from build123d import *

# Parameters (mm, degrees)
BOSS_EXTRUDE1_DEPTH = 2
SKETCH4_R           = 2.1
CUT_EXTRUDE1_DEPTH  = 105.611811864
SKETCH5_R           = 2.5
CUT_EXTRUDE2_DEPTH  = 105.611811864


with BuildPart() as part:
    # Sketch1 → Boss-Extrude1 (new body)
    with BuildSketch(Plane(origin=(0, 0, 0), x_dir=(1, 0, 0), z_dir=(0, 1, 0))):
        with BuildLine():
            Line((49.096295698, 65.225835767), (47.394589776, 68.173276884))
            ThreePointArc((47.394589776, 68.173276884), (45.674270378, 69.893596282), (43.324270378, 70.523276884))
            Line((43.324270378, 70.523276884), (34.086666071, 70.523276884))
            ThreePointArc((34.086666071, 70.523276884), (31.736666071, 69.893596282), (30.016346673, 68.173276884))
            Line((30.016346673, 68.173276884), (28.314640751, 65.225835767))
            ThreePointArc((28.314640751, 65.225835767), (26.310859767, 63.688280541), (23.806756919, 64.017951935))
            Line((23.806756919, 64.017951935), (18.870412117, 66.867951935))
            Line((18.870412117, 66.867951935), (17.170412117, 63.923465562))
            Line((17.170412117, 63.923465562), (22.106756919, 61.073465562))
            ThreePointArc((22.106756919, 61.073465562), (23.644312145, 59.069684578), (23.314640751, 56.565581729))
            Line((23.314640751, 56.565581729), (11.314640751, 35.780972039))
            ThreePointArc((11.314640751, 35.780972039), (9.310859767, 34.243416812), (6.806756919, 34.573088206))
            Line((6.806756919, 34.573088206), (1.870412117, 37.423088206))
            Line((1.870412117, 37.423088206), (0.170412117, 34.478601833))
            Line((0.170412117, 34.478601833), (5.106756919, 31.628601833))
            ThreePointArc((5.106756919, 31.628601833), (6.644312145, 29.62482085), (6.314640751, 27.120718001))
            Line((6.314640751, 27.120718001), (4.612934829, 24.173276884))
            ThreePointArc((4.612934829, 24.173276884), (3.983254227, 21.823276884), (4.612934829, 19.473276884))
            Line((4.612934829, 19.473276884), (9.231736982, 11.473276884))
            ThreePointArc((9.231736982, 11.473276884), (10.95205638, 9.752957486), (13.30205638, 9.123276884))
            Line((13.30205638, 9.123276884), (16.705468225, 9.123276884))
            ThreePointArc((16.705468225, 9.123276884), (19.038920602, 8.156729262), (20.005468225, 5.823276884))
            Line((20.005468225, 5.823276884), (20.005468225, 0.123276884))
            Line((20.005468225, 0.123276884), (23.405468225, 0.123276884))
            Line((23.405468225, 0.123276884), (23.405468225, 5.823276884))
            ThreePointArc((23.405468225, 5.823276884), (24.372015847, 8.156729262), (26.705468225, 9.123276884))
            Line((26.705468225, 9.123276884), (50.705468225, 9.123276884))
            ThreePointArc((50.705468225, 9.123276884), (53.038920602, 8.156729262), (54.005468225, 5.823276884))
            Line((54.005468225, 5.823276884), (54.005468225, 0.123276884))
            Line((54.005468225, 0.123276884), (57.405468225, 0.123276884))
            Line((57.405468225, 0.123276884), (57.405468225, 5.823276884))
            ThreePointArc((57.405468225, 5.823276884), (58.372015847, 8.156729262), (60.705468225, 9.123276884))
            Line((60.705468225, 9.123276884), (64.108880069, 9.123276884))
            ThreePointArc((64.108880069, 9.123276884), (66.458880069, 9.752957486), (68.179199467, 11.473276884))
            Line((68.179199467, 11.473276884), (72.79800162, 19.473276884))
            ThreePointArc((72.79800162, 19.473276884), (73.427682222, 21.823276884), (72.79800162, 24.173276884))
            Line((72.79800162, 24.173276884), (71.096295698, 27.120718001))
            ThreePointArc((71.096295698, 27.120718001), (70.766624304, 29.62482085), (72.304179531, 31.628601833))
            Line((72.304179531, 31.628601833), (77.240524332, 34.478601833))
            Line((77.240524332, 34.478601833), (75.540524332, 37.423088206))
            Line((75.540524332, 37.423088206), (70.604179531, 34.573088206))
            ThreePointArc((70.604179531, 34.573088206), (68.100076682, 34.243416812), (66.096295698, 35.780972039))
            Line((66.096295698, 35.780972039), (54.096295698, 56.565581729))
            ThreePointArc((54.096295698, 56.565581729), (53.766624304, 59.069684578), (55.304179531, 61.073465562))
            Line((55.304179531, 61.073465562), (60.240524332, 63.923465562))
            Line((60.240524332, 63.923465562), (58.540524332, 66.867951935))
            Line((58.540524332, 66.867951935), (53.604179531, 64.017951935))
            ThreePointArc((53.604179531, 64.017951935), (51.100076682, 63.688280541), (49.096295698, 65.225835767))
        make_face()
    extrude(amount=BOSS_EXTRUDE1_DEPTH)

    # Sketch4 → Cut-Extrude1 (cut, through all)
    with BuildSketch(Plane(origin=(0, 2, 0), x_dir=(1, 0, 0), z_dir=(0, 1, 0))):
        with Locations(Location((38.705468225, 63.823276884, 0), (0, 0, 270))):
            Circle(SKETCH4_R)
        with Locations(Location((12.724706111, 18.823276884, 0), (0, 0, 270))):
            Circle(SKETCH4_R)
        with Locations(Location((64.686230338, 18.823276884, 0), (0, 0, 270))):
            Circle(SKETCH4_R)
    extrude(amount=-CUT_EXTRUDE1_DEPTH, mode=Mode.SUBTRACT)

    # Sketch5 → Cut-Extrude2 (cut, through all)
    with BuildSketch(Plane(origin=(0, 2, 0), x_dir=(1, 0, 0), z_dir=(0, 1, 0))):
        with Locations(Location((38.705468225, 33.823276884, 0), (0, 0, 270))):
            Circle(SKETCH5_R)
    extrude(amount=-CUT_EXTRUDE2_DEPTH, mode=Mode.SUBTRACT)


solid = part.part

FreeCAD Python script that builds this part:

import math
import FreeCAD as App
import Part
import Sketcher
from FreeCAD import Vector
Q = App.Units.Quantity

doc = App.newDocument("Part")
body = doc.addObject("PartDesign::Body", "Body")

# Sketch on XZ plane
sketch1 = doc.addObject("Sketcher::SketchObject", "Sketch")
body.addObject(sketch1)
sketch1.AttachmentSupport = (doc.XZ_Plane, [""])
sketch1.MapMode = "FlatFace"
sketch1.addGeometry(Part.LineSegment(Vector(49.1, -65.2, 0), Vector(47.4, -68.2, 0)), False)
sketch1.addGeometry(Part.ArcOfCircle(Part.Circle(Vector(43.3, -65.8, 0), Vector(0, 0, 1), 4.7), math.radians(-90), math.radians(-30)), False)
sketch1.addGeometry(Part.LineSegment(Vector(43.3, -70.5, 0), Vector(34.1, -70.5, 0)), False)
sketch1.addGeometry(Part.ArcOfCircle(Part.Circle(Vector(34.1, -65.8, 0), Vector(0, 0, 1), 4.7), math.radians(-150), math.radians(-90)), False)
sketch1.addGeometry(Part.LineSegment(Vector(30, -68.2, 0), Vector(28.3, -65.2, 0)), False)
sketch1.addGeometry(Part.ArcOfCircle(Part.Circle(Vector(25.5, -66.9, 0), Vector(0, 0, 1), 3.3), math.radians(30), math.radians(120)), False)
sketch1.addGeometry(Part.LineSegment(Vector(23.8, -64, 0), Vector(18.9, -66.9, 0)), False)
sketch1.addGeometry(Part.LineSegment(Vector(18.9, -66.9, 0), Vector(17.2, -63.9, 0)), False)
sketch1.addGeometry(Part.LineSegment(Vector(17.2, -63.9, 0), Vector(22.1, -61.1, 0)), False)
sketch1.addGeometry(Part.ArcOfCircle(Part.Circle(Vector(20.5, -58.2, 0), Vector(0, 0, 1), 3.3), math.radians(-60), math.radians(30)), False)
sketch1.addGeometry(Part.LineSegment(Vector(23.3, -56.6, 0), Vector(11.3, -35.8, 0)), False)
sketch1.addGeometry(Part.ArcOfCircle(Part.Circle(Vector(8.5, -37.4, 0), Vector(0, 0, 1), 3.3), math.radians(30), math.radians(120)), False)
sketch1.addGeometry(Part.LineSegment(Vector(6.8, -34.6, 0), Vector(1.9, -37.4, 0)), False)
sketch1.addGeometry(Part.LineSegment(Vector(1.9, -37.4, 0), Vector(0.2, -34.5, 0)), False)
sketch1.addGeometry(Part.LineSegment(Vector(0.2, -34.5, 0), Vector(5.1, -31.6, 0)), False)
sketch1.addGeometry(Part.ArcOfCircle(Part.Circle(Vector(3.5, -28.8, 0), Vector(0, 0, 1), 3.3), math.radians(-60), math.radians(30)), False)
sketch1.addGeometry(Part.LineSegment(Vector(6.3, -27.1, 0), Vector(4.6, -24.2, 0)), False)
sketch1.addGeometry(Part.ArcOfCircle(Part.Circle(Vector(8.7, -21.8, 0), Vector(0, 0, 1), 4.7), math.radians(150), math.radians(210)), False)
sketch1.addGeometry(Part.LineSegment(Vector(4.6, -19.5, 0), Vector(9.2, -11.5, 0)), False)
sketch1.addGeometry(Part.ArcOfCircle(Part.Circle(Vector(13.3, -13.8, 0), Vector(0, 0, 1), 4.7), math.radians(90), math.radians(150)), False)
sketch1.addGeometry(Part.LineSegment(Vector(13.3, -9.1, 0), Vector(16.7, -9.1, 0)), False)
sketch1.addGeometry(Part.ArcOfCircle(Part.Circle(Vector(16.7, -5.8, 0), Vector(0, 0, 1), 3.3), math.radians(-90), math.radians(0)), False)
sketch1.addGeometry(Part.LineSegment(Vector(20, -5.8, 0), Vector(20, -0.1, 0)), False)
sketch1.addGeometry(Part.LineSegment(Vector(20, -0.1, 0), Vector(23.4, -0.1, 0)), False)
sketch1.addGeometry(Part.LineSegment(Vector(23.4, -0.1, 0), Vector(23.4, -5.8, 0)), False)
sketch1.addGeometry(Part.ArcOfCircle(Part.Circle(Vector(26.7, -5.8, 0), Vector(0, 0, 1), 3.3), math.radians(180), math.radians(270)), False)
sketch1.addGeometry(Part.LineSegment(Vector(26.7, -9.1, 0), Vector(50.7, -9.1, 0)), False)
sketch1.addGeometry(Part.ArcOfCircle(Part.Circle(Vector(50.7, -5.8, 0), Vector(0, 0, 1), 3.3), math.radians(-90), math.radians(0)), False)
sketch1.addGeometry(Part.LineSegment(Vector(54, -5.8, 0), Vector(54, -0.1, 0)), False)
sketch1.addGeometry(Part.LineSegment(Vector(54, -0.1, 0), Vector(57.4, -0.1, 0)), False)
sketch1.addGeometry(Part.LineSegment(Vector(57.4, -0.1, 0), Vector(57.4, -5.8, 0)), False)
sketch1.addGeometry(Part.ArcOfCircle(Part.Circle(Vector(60.7, -5.8, 0), Vector(0, 0, 1), 3.3), math.radians(180), math.radians(270)), False)
sketch1.addGeometry(Part.LineSegment(Vector(60.7, -9.1, 0), Vector(64.1, -9.1, 0)), False)
sketch1.addGeometry(Part.ArcOfCircle(Part.Circle(Vector(64.1, -13.8, 0), Vector(0, 0, 1), 4.7), math.radians(30), math.radians(90)), False)
sketch1.addGeometry(Part.LineSegment(Vector(68.2, -11.5, 0), Vector(72.8, -19.5, 0)), False)
sketch1.addGeometry(Part.ArcOfCircle(Part.Circle(Vector(68.7, -21.8, 0), Vector(0, 0, 1), 4.7), math.radians(-30), math.radians(30)), False)
sketch1.addGeometry(Part.LineSegment(Vector(72.8, -24.2, 0), Vector(71.1, -27.1, 0)), False)
sketch1.addGeometry(Part.ArcOfCircle(Part.Circle(Vector(74, -28.8, 0), Vector(0, 0, 1), 3.3), math.radians(150), math.radians(240)), False)
sketch1.addGeometry(Part.LineSegment(Vector(72.3, -31.6, 0), Vector(77.2, -34.5, 0)), False)
sketch1.addGeometry(Part.LineSegment(Vector(77.2, -34.5, 0), Vector(75.5, -37.4, 0)), False)
sketch1.addGeometry(Part.LineSegment(Vector(75.5, -37.4, 0), Vector(70.6, -34.6, 0)), False)
sketch1.addGeometry(Part.ArcOfCircle(Part.Circle(Vector(69, -37.4, 0), Vector(0, 0, 1), 3.3), math.radians(60), math.radians(150)), False)
sketch1.addGeometry(Part.LineSegment(Vector(66.1, -35.8, 0), Vector(54.1, -56.6, 0)), False)
sketch1.addGeometry(Part.ArcOfCircle(Part.Circle(Vector(57, -58.2, 0), Vector(0, 0, 1), 3.3), math.radians(150), math.radians(240)), False)
sketch1.addGeometry(Part.LineSegment(Vector(55.3, -61.1, 0), Vector(60.2, -63.9, 0)), False)
sketch1.addGeometry(Part.LineSegment(Vector(60.2, -63.9, 0), Vector(58.5, -66.9, 0)), False)
sketch1.addGeometry(Part.LineSegment(Vector(58.5, -66.9, 0), Vector(53.6, -64, 0)), False)
sketch1.addGeometry(Part.ArcOfCircle(Part.Circle(Vector(52, -66.9, 0), Vector(0, 0, 1), 3.3), math.radians(60), math.radians(150)), False)
sketch1.addConstraint(Sketcher.Constraint("Tangent", 0, 2, 1, 2))
sketch1.addConstraint(Sketcher.Constraint("Tangent", 1, 1, 2, 1))
sketch1.addConstraint(Sketcher.Constraint("Tangent", 2, 2, 3, 2))
sketch1.addConstraint(Sketcher.Constraint("Tangent", 3, 1, 4, 1))
sketch1.addConstraint(Sketcher.Constraint("Tangent", 4, 2, 5, 1))
sketch1.addConstraint(Sketcher.Constraint("Tangent", 5, 2, 6, 1))
sketch1.addConstraint(Sketcher.Constraint("Coincident", 6, 2, 7, 1))
sketch1.addConstraint(Sketcher.Constraint("Coincident", 7, 2, 8, 1))
sketch1.addConstraint(Sketcher.Constraint("Tangent", 8, 2, 9, 1))
sketch1.addConstraint(Sketcher.Constraint("Tangent", 9, 2, 10, 1))
sketch1.addConstraint(Sketcher.Constraint("Tangent", 10, 2, 11, 1))
sketch1.addConstraint(Sketcher.Constraint("Tangent", 11, 2, 12, 1))
sketch1.addConstraint(Sketcher.Constraint("Coincident", 12, 2, 13, 1))
sketch1.addConstraint(Sketcher.Constraint("Coincident", 13, 2, 14, 1))
sketch1.addConstraint(Sketcher.Constraint("Tangent", 14, 2, 15, 1))
sketch1.addConstraint(Sketcher.Constraint("Tangent", 15, 2, 16, 1))
sketch1.addConstraint(Sketcher.Constraint("Tangent", 16, 2, 17, 2))
sketch1.addConstraint(Sketcher.Constraint("Tangent", 17, 1, 18, 1))
sketch1.addConstraint(Sketcher.Constraint("Tangent", 18, 2, 19, 2))
sketch1.addConstraint(Sketcher.Constraint("Tangent", 19, 1, 20, 1))
sketch1.addConstraint(Sketcher.Constraint("Tangent", 20, 2, 21, 1))
sketch1.addConstraint(Sketcher.Constraint("Tangent", 21, 2, 22, 1))
sketch1.addConstraint(Sketcher.Constraint("Coincident", 22, 2, 23, 1))
sketch1.addConstraint(Sketcher.Constraint("Coincident", 23, 2, 24, 1))
sketch1.addConstraint(Sketcher.Constraint("Tangent", 24, 2, 25, 1))
sketch1.addConstraint(Sketcher.Constraint("Tangent", 25, 2, 26, 1))
sketch1.addConstraint(Sketcher.Constraint("Tangent", 26, 2, 27, 1))
sketch1.addConstraint(Sketcher.Constraint("Tangent", 27, 2, 28, 1))
sketch1.addConstraint(Sketcher.Constraint("Coincident", 28, 2, 29, 1))
sketch1.addConstraint(Sketcher.Constraint("Coincident", 29, 2, 30, 1))
sketch1.addConstraint(Sketcher.Constraint("Tangent", 30, 2, 31, 1))
sketch1.addConstraint(Sketcher.Constraint("Tangent", 31, 2, 32, 1))
sketch1.addConstraint(Sketcher.Constraint("Tangent", 32, 2, 33, 2))
sketch1.addConstraint(Sketcher.Constraint("Tangent", 33, 1, 34, 1))
sketch1.addConstraint(Sketcher.Constraint("Tangent", 34, 2, 35, 2))
sketch1.addConstraint(Sketcher.Constraint("Tangent", 35, 1, 36, 1))
sketch1.addConstraint(Sketcher.Constraint("Tangent", 36, 2, 37, 1))
sketch1.addConstraint(Sketcher.Constraint("Tangent", 37, 2, 38, 1))
sketch1.addConstraint(Sketcher.Constraint("Coincident", 38, 2, 39, 1))
sketch1.addConstraint(Sketcher.Constraint("Coincident", 39, 2, 40, 1))
sketch1.addConstraint(Sketcher.Constraint("Tangent", 40, 2, 41, 1))
sketch1.addConstraint(Sketcher.Constraint("Tangent", 41, 2, 42, 1))
sketch1.addConstraint(Sketcher.Constraint("Tangent", 42, 2, 43, 1))
sketch1.addConstraint(Sketcher.Constraint("Tangent", 43, 2, 44, 1))
sketch1.addConstraint(Sketcher.Constraint("Coincident", 44, 2, 45, 1))
sketch1.addConstraint(Sketcher.Constraint("Coincident", 45, 2, 46, 1))
sketch1.addConstraint(Sketcher.Constraint("Tangent", 46, 2, 47, 1))
sketch1.addConstraint(Sketcher.Constraint("Tangent", 47, 2, 0, 1))
sketch1.addConstraint(Sketcher.Constraint("Horizontal", 2))
sketch1.addConstraint(Sketcher.Constraint("Horizontal", 20))
sketch1.addConstraint(Sketcher.Constraint("Vertical", 22))
sketch1.addConstraint(Sketcher.Constraint("Horizontal", 23))
sketch1.addConstraint(Sketcher.Constraint("Vertical", 24))
sketch1.addConstraint(Sketcher.Constraint("Horizontal", 26))
sketch1.addConstraint(Sketcher.Constraint("Vertical", 28))
sketch1.addConstraint(Sketcher.Constraint("Horizontal", 29))
sketch1.addConstraint(Sketcher.Constraint("Vertical", 30))
sketch1.addConstraint(Sketcher.Constraint("Horizontal", 32))
sketch1.addConstraint(Sketcher.Constraint("Equal", 1, 3))
sketch1.addConstraint(Sketcher.Constraint("Equal", 5, 9))
sketch1.addConstraint(Sketcher.Constraint("Equal", 9, 11))
sketch1.addConstraint(Sketcher.Constraint("Equal", 11, 15))
sketch1.addConstraint(Sketcher.Constraint("Equal", 3, 17))
sketch1.addConstraint(Sketcher.Constraint("Equal", 17, 19))
sketch1.addConstraint(Sketcher.Constraint("Equal", 15, 21))
sketch1.addConstraint(Sketcher.Constraint("Equal", 21, 25))
sketch1.addConstraint(Sketcher.Constraint("Equal", 25, 27))
sketch1.addConstraint(Sketcher.Constraint("Equal", 27, 31))
sketch1.addConstraint(Sketcher.Constraint("Equal", 19, 33))
sketch1.addConstraint(Sketcher.Constraint("Equal", 33, 35))
sketch1.addConstraint(Sketcher.Constraint("Equal", 31, 37))
sketch1.addConstraint(Sketcher.Constraint("Equal", 37, 41))
sketch1.addConstraint(Sketcher.Constraint("Equal", 41, 43))
sketch1.addConstraint(Sketcher.Constraint("Equal", 43, 47))
sketch1.addConstraint(Sketcher.Constraint("Perpendicular", 4, 6))
sketch1.addConstraint(Sketcher.Constraint("Perpendicular", 6, 7))
sketch1.addConstraint(Sketcher.Constraint("Perpendicular", 7, 8))
sketch1.addConstraint(Sketcher.Constraint("Perpendicular", 8, 10))
sketch1.addConstraint(Sketcher.Constraint("Perpendicular", 10, 12))
sketch1.addConstraint(Sketcher.Constraint("Perpendicular", 12, 13))
sketch1.addConstraint(Sketcher.Constraint("Perpendicular", 13, 14))
sketch1.addConstraint(Sketcher.Constraint("Perpendicular", 14, 16))
sketch1.addConstraint(Sketcher.Constraint("Parallel", 0, 18))
sketch1.addConstraint(Sketcher.Constraint("Parallel", 16, 34))
sketch1.addConstraint(Sketcher.Constraint("Parallel", 18, 36))
sketch1.addConstraint(Sketcher.Constraint("Perpendicular", 36, 38))
sketch1.addConstraint(Sketcher.Constraint("Perpendicular", 38, 39))
sketch1.addConstraint(Sketcher.Constraint("Perpendicular", 39, 40))
sketch1.addConstraint(Sketcher.Constraint("Perpendicular", 40, 42))
sketch1.addConstraint(Sketcher.Constraint("Perpendicular", 42, 44))
sketch1.addConstraint(Sketcher.Constraint("Perpendicular", 44, 45))
sketch1.addConstraint(Sketcher.Constraint("Perpendicular", 45, 46))
sketch1.addConstraint(Sketcher.Constraint("Horizontal", 21, 3, 25, 3))
sketch1.addConstraint(Sketcher.Constraint("Horizontal", 27, 3, 31, 3))
sketch1.addConstraint(Sketcher.Constraint("Horizontal", 17, 3, 35, 3))
sketch1.addConstraint(Sketcher.Constraint("Horizontal", 15, 3, 37, 3))
sketch1.addConstraint(Sketcher.Constraint("Horizontal", 11, 3, 41, 3))
sketch1.addConstraint(Sketcher.Constraint("Horizontal", 9, 3, 43, 3))
sketch1.addConstraint(Sketcher.Constraint("Horizontal", 5, 3, 47, 3))
sketch1.addConstraint(Sketcher.Constraint("Horizontal", 0, 2, 3, 1))
sketch1.addConstraint(Sketcher.Constraint("Horizontal", 23, 2, 28, 2))
sketch1.addConstraint(Sketcher.Constraint("Horizontal", 13, 2, 38, 2))
sketch1.addConstraint(Sketcher.Constraint("Horizontal", 12, 2, 39, 2))
sketch1.addConstraint(Sketcher.Constraint("Horizontal", 7, 2, 44, 2))
sketch1.addConstraint(Sketcher.Constraint("Horizontal", 6, 2, 45, 2))
sketch1.addConstraint(Sketcher.Constraint("Equal", 23, 29))
sketch1.addConstraint(Sketcher.Constraint("Equal", 20, 32))
sketch1.addConstraint(Sketcher.Constraint("Equal", 6, 8))
sketch1.addConstraint(Sketcher.Constraint("Equal", 8, 12))
sketch1.addConstraint(Sketcher.Constraint("Equal", 7, 13))
sketch1.addConstraint(Sketcher.Constraint("Equal", 12, 14))
sketch1.addConstraint(Sketcher.Constraint("Equal", 4, 16))
sketch1.addConstraint(Sketcher.Constraint("Radius", 1, Q("4.7 mm")))
sketch1.addConstraint(Sketcher.Constraint("Radius", 5, Q("3.3 mm")))
sketch1.addConstraint(Sketcher.Constraint("DistanceX", 26, 1, 26, 2, Q("24 mm")))
sketch1.addConstraint(Sketcher.Constraint("Angle", 0, Q("-120 deg")))
sketch1.addConstraint(Sketcher.Constraint("Distance", 10, Q("24 mm")))
sketch1.addConstraint(Sketcher.Constraint("DistanceX", 23, 1, 23, 2, Q("3.4 mm")))
sketch1.addConstraint(Sketcher.Constraint("DistanceY", 22, 1, 22, 2, Q("5.7 mm")))
sketch1.addConstraint(Sketcher.Constraint("Distance", 6, Q("5.7 mm")))
sketch1.addConstraint(Sketcher.Constraint("Distance", 7, Q("3.4 mm")))
sketch1.addConstraint(Sketcher.Constraint("DistanceX", -1, 1, 34, 2, Q("72.798002 mm")))
sketch1.addConstraint(Sketcher.Constraint("DistanceX", 20, 1, 20, 2, Q("3.403412 mm")))
sketch1.addConstraint(Sketcher.Constraint("DistanceY", 13, 2, -1, 1, Q("34.478602 mm")))
sketch1.addConstraint(Sketcher.Constraint("DistanceX", -1, 1, 33, 1, Q("68.179199 mm")))
sketch1.addConstraint(Sketcher.Constraint("Distance", 0, Q("3.403412 mm")))
pad1 = doc.addObject("PartDesign::Pad", "Pad")
body.addObject(pad1)
pad1.Profile = sketch1
pad1.Length = 2
pad1.Reversed = True

# Sketch on XZ plane
sketch2 = doc.addObject("Sketcher::SketchObject", "Sketch001")
body.addObject(sketch2)
sketch2.AttachmentSupport = (doc.XZ_Plane, [""])
sketch2.MapMode = "FlatFace"
sketch2.AttachmentOffset = App.Placement(Vector(0, 0, -2), App.Rotation())
sketch2.addGeometry(Part.Circle(Vector(38.7, -63.8, 0), Vector(0, 0, 1), 2.1), False)
sketch2.addGeometry(Part.Circle(Vector(12.7, -18.8, 0), Vector(0, 0, 1), 2.1), False)
sketch2.addGeometry(Part.Circle(Vector(64.7, -18.8, 0), Vector(0, 0, 1), 2.1), False)
sketch2.addConstraint(Sketcher.Constraint("Equal", 0, 1))
sketch2.addConstraint(Sketcher.Constraint("Equal", 1, 2))
sketch2.addConstraint(Sketcher.Constraint("Horizontal", 1, 3, 2, 3))
sketch2.addConstraint(Sketcher.Constraint("Diameter", 0, Q("4.2 mm")))
sketch2.addConstraint(Sketcher.Constraint("DistanceY", 0, 3, 1, 3, Q("45 mm")))
sketch2.addConstraint(Sketcher.Constraint("DistanceX", -1, 1, 0, 3, Q("38.705468 mm")))
sketch2.addConstraint(Sketcher.Constraint("DistanceX", -1, 1, 2, 3, Q("64.68623 mm")))
sketch2.addConstraint(Sketcher.Constraint("DistanceY", 0, 3, -1, 1, Q("63.823277 mm")))
sketch2.addConstraint(Sketcher.Constraint("DistanceX", -1, 1, 1, 3, Q("12.724706 mm")))
pocket1 = doc.addObject("PartDesign::Pocket", "Pocket")
body.addObject(pocket1)
pocket1.Profile = sketch2
pocket1.Type = "ThroughAll"
pocket1.Reversed = True

# Sketch on XZ plane
sketch3 = doc.addObject("Sketcher::SketchObject", "Sketch002")
body.addObject(sketch3)
sketch3.AttachmentSupport = (doc.XZ_Plane, [""])
sketch3.MapMode = "FlatFace"
sketch3.AttachmentOffset = App.Placement(Vector(0, 0, -2), App.Rotation())
sketch3.addGeometry(Part.Circle(Vector(38.7, -33.8, 0), Vector(0, 0, 1), 2.5), False)
sketch3.addConstraint(Sketcher.Constraint("Diameter", 0, Q("5 mm")))
sketch3.addConstraint(Sketcher.Constraint("DistanceX", -1, 1, 0, 3, Q("38.705468 mm")))
sketch3.addConstraint(Sketcher.Constraint("DistanceY", 0, 3, -1, 1, Q("33.823277 mm")))
pocket2 = doc.addObject("PartDesign::Pocket", "Pocket001")
body.addObject(pocket2)
pocket2.Profile = sketch3
pocket2.Type = "ThroughAll"
pocket2.Reversed = True

doc.recompute()
